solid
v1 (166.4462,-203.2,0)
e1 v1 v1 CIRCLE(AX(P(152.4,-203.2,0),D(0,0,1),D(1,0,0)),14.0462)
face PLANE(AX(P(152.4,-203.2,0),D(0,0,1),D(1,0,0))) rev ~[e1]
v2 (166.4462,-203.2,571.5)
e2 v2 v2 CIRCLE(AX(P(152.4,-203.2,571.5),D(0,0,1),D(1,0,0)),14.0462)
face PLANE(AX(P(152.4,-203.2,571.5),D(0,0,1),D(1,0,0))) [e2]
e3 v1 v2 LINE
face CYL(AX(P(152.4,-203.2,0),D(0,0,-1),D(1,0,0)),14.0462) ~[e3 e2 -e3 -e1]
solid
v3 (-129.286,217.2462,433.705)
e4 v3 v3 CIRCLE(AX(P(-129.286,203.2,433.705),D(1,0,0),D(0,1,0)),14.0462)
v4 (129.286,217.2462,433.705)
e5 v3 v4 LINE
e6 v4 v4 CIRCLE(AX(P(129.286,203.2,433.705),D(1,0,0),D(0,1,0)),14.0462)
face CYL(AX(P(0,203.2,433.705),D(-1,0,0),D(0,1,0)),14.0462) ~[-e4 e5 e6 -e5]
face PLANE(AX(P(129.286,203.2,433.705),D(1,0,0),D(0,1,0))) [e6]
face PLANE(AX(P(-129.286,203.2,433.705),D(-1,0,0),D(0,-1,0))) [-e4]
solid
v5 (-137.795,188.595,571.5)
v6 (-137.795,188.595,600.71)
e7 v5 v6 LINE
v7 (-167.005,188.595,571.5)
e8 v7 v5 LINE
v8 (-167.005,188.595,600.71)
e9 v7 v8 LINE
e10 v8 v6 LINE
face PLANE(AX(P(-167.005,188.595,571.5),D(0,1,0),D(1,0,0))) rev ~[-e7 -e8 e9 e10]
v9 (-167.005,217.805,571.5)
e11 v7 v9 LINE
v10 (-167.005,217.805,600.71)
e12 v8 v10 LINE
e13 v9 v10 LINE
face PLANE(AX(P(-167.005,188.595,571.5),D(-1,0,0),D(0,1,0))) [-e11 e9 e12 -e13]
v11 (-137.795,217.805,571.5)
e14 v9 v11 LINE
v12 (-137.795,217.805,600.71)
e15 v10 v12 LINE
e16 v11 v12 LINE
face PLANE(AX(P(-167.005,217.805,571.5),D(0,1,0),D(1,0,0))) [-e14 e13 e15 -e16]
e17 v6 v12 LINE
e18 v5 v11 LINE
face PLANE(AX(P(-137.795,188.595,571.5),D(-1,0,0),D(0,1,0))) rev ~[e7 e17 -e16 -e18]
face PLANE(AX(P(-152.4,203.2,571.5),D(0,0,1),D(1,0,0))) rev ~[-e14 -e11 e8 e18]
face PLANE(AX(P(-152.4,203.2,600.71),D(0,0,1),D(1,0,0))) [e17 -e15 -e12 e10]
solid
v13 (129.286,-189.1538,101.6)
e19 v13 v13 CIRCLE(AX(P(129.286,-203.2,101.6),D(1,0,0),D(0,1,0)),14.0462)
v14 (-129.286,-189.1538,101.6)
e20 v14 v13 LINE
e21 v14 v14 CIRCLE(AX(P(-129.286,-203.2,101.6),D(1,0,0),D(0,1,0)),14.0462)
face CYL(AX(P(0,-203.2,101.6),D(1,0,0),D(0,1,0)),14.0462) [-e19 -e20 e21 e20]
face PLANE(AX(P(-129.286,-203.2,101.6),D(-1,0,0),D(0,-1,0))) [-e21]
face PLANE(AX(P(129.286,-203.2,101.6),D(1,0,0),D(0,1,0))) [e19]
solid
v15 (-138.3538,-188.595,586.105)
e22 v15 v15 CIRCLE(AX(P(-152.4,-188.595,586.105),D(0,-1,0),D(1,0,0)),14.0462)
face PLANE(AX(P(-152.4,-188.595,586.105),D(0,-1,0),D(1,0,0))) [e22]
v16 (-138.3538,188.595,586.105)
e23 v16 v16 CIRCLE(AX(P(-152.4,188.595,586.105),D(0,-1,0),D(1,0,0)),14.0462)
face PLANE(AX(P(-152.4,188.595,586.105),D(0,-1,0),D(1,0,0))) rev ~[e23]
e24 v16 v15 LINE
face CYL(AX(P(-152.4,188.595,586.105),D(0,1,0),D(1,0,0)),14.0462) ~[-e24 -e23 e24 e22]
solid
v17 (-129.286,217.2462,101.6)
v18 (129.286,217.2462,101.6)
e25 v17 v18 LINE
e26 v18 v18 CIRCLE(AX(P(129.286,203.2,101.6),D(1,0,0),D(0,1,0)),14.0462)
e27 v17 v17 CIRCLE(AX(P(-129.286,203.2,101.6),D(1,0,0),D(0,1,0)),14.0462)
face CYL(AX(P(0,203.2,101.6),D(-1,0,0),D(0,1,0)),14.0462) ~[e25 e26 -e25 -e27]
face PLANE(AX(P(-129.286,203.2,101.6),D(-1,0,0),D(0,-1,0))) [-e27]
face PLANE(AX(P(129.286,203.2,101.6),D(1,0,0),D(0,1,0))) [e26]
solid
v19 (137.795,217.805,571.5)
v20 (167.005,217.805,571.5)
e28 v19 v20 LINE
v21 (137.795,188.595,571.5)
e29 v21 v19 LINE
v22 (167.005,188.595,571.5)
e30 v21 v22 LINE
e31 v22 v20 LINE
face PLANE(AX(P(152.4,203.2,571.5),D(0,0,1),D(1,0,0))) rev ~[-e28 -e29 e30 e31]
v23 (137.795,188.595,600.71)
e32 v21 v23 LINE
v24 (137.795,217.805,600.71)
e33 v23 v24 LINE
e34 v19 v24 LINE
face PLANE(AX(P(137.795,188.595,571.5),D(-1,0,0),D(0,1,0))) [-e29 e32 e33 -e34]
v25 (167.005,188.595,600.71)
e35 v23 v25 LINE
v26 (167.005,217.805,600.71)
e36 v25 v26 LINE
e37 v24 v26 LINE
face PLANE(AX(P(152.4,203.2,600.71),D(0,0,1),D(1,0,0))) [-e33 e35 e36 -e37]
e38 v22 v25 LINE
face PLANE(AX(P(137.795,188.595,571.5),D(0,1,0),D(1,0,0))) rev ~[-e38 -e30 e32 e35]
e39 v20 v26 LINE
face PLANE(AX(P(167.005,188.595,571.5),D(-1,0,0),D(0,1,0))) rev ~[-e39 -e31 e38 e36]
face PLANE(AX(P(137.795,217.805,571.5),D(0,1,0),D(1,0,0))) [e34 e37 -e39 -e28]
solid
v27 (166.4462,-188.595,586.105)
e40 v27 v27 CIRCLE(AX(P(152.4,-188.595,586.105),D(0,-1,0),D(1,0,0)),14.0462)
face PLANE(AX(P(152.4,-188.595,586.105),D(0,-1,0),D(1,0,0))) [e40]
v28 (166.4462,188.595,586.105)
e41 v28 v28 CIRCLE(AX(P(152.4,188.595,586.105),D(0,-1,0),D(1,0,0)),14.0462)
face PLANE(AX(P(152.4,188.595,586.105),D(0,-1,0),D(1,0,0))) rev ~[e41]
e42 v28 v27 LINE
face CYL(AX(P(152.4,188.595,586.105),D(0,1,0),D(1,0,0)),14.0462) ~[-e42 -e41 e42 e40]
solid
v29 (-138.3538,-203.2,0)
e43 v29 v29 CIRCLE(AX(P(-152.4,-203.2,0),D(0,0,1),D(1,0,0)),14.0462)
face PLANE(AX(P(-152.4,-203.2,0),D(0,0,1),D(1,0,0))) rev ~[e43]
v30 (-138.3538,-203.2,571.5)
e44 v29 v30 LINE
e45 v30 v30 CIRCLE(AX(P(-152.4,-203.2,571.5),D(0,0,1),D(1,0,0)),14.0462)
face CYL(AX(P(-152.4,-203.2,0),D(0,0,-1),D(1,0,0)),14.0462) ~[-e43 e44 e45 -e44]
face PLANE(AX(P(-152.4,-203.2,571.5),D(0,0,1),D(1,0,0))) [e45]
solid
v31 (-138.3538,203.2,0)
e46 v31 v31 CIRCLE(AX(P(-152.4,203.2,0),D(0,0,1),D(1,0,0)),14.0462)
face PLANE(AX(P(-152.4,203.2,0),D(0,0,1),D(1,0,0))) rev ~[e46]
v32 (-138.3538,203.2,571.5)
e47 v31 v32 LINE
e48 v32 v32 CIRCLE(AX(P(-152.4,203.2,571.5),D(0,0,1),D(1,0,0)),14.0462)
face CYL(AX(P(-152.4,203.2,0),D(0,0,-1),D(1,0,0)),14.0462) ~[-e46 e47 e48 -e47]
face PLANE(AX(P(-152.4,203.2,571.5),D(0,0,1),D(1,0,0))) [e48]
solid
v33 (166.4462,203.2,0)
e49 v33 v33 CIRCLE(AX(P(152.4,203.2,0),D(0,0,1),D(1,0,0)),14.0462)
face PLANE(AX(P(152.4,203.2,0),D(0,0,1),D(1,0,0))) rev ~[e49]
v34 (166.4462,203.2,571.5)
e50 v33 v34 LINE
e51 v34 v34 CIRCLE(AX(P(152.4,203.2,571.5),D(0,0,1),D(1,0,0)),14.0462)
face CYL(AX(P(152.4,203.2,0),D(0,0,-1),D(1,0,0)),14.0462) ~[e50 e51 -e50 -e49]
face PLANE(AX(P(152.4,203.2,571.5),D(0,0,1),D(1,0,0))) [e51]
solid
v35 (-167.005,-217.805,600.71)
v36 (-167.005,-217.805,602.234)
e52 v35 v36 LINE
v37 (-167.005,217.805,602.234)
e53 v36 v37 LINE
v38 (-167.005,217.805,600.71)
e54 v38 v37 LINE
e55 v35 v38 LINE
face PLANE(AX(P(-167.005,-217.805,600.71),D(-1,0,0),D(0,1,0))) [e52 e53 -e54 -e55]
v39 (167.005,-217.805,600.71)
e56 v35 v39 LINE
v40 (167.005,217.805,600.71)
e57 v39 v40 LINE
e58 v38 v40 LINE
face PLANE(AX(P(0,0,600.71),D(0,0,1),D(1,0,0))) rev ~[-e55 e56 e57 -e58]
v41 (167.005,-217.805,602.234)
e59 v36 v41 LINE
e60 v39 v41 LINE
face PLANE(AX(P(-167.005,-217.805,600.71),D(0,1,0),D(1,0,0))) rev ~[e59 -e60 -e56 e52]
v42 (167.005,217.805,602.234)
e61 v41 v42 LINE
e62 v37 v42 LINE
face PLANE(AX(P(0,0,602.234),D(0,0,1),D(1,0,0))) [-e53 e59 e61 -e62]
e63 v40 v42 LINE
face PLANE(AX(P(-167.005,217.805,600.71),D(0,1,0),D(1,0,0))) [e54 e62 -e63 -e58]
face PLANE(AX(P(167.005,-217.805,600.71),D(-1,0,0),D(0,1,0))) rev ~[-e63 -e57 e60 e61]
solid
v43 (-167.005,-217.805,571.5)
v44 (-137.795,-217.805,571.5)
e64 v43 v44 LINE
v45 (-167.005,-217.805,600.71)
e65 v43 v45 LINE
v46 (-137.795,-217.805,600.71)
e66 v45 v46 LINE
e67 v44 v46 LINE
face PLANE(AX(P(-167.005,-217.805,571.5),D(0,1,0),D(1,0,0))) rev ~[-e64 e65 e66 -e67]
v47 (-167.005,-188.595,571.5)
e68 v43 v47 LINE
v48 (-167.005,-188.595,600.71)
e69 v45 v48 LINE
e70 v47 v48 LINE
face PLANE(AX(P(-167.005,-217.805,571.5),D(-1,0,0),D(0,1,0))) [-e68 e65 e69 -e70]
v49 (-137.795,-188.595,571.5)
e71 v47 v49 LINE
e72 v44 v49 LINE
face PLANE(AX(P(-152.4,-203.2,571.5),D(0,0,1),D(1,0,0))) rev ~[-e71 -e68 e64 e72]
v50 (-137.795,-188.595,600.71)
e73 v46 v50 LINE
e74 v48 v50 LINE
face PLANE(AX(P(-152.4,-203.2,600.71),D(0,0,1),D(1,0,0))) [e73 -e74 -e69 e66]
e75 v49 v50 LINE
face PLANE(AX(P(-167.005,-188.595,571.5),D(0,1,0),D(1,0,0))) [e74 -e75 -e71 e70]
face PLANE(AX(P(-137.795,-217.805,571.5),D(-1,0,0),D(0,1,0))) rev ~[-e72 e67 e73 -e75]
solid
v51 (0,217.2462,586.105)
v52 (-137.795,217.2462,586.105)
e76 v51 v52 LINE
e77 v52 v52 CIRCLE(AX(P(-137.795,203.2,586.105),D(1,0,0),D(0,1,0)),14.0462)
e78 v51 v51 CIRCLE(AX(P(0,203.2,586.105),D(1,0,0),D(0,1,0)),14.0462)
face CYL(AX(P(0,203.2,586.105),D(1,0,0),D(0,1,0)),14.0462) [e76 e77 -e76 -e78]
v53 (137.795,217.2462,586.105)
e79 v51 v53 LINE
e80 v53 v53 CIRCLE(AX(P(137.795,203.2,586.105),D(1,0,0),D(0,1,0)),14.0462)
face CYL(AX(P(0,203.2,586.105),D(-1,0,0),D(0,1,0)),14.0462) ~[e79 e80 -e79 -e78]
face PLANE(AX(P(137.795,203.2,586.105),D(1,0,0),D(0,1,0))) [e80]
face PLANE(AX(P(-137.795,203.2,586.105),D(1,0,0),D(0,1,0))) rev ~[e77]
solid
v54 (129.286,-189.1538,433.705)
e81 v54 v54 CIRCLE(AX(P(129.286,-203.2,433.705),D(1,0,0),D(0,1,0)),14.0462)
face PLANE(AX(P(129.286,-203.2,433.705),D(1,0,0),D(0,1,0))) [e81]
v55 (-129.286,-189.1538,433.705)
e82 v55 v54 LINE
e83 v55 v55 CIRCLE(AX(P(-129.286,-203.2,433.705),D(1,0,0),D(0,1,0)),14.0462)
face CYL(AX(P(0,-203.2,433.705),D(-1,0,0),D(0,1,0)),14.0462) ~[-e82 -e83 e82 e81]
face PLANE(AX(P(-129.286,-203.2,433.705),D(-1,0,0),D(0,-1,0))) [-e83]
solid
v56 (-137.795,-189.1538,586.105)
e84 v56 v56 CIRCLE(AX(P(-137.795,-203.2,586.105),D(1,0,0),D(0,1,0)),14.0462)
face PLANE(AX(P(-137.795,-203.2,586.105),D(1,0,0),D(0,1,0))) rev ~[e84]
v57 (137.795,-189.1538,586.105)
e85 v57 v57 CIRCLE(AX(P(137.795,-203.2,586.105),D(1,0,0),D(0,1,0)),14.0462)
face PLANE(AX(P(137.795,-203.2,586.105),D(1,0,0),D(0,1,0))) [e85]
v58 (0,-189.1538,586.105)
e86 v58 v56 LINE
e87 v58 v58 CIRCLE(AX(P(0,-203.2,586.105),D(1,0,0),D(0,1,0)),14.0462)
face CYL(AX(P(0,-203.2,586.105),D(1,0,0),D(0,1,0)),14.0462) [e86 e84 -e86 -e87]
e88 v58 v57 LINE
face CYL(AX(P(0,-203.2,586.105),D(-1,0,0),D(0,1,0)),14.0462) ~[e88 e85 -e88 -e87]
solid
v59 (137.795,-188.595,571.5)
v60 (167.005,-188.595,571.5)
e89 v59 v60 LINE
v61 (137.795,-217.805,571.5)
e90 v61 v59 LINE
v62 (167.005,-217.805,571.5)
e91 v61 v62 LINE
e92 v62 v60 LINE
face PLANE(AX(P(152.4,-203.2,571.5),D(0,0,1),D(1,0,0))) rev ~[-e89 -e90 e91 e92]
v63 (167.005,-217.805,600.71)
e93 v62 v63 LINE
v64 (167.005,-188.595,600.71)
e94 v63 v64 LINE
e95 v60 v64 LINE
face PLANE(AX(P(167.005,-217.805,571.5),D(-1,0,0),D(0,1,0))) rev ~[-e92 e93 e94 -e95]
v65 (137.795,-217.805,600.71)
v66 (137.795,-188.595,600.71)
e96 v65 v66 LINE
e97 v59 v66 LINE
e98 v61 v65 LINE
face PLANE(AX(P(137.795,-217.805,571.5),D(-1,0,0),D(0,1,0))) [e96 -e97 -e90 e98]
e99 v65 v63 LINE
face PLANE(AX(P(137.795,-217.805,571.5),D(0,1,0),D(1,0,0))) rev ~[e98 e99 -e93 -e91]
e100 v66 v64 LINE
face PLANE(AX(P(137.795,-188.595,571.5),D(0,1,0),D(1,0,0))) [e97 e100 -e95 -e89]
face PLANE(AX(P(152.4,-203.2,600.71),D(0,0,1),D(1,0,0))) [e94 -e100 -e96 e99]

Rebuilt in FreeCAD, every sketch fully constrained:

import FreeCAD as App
import Part
import Sketcher
Q = App.Units.Quantity


def add_polygon(sketch, points):
    """Adds a closed chain of lines whose ends are joined by coincident constraints."""
    first, n = sketch.GeometryCount, len(points)
    for a, b in zip(points, points[1:] + points[:1]):
        sketch.addGeometry(Part.LineSegment(App.Vector(*a, 0), App.Vector(*b, 0)), False)
    for i in range(n):
        sketch.addConstraint(Sketcher.Constraint("Coincident", first + i, 2, first + (i + 1) % n, 1))

doc = App.newDocument("Part")
body = doc.addObject("PartDesign::Body", "Body")
body.AllowCompound = True

# Sketch on XY plane
sketch1 = body.newObject("Sketcher::SketchObject", "Sketch")
sketch1.AttachmentSupport = (doc.getObject("XY_Plane"), [""])
sketch1.MapMode = "FlatFace"
sketch1.addGeometry([
    Part.Circle(App.Vector(-152, 203, 0), App.Vector(0, 0, 1), 14),
    Part.Circle(App.Vector(152, 203, 0), App.Vector(0, 0, 1), 14),
    Part.Circle(App.Vector(-152, -203, 0), App.Vector(0, 0, 1), 14),
    Part.Circle(App.Vector(152, -203, 0), App.Vector(0, 0, 1), 14),
], False)
sketch1.addConstraint([
    Sketcher.Constraint("Equal", 0, 1),
    Sketcher.Constraint("Equal", 1, 2),
    Sketcher.Constraint("Equal", 2, 3),
    Sketcher.Constraint("Symmetric", 1, 3, 2, 3, -1, 1),
    Sketcher.Constraint("Symmetric", 0, 3, 3, 3, -1, 1),
    Sketcher.Constraint("Symmetric", 0, 3, 1, 3, -2),
    Sketcher.Constraint("Diameter", 0, Q("1.106 in")),
    Sketcher.Constraint("DistanceX", 0, 3, -1, 1, Q("6 in")),
    Sketcher.Constraint("DistanceY", -1, 1, 0, 3, Q("8 in")),
])
pad1 = body.newObject("PartDesign::Pad", "Pad")
pad1.Profile = sketch1
pad1.Length = Q("22.5 in")
body2 = doc.addObject("PartDesign::Body", "Body001")
body2.AllowCompound = True

# Sketch on YZ plane
sketch2 = body2.newObject("Sketcher::SketchObject", "Sketch001")
sketch2.AttachmentSupport = (doc.getObject("YZ_Plane001"), [""])
sketch2.MapMode = "FlatFace"
sketch2.addGeometry([
    Part.Circle(App.Vector(203, 102, 0), App.Vector(0, 0, 1), 14),  # 0
    Part.Circle(App.Vector(203, 434, 0), App.Vector(0, 0, 1), 14),  # 1
    Part.Circle(App.Vector(203, 586, 0), App.Vector(0, 0, 1), 14),  # 2
    Part.Circle(App.Vector(-203, 586, 0), App.Vector(0, 0, 1), 14),  # 3
    Part.Circle(App.Vector(-203, 434, 0), App.Vector(0, 0, 1), 14),  # 4
    Part.Circle(App.Vector(-203, 102, 0), App.Vector(0, 0, 1), 14),  # 5
], False)
sketch2.addConstraint([
    Sketcher.Constraint("Equal", 0, 1),
    Sketcher.Constraint("Equal", 1, 2),
    Sketcher.Constraint("Equal", 2, 3),
    Sketcher.Constraint("Equal", 3, 4),
    Sketcher.Constraint("Equal", 4, 5),
    Sketcher.Constraint("Symmetric", 2, 3, 3, 3, -2),
    Sketcher.Constraint("Symmetric", 1, 3, 4, 3, -2),
    Sketcher.Constraint("Symmetric", 0, 3, 5, 3, -2),
    Sketcher.Constraint("Vertical", 0, 3, 1, 3),
    Sketcher.Constraint("Vertical", 1, 3, 2, 3),
    Sketcher.Constraint("Diameter", 0, Q("1.106 in")),
    Sketcher.Constraint("DistanceX", -1, 1, 0, 3, Q("8 in")),
    Sketcher.Constraint("DistanceY", -1, 1, 0, 3, Q("4 in")),
    Sketcher.Constraint("DistanceY", 1, 3, 2, 3, Q("6 in")),
    Sketcher.Constraint("DistanceY", -1, 1, 1, 3, Q("17.075 in")),
])
pad2 = body2.newObject("PartDesign::Pad", "Pad001")
pad2.Profile = sketch2
pad2.Length = Q("10.85 in")
pad2.Midplane = True

# Sketch on YZ plane
sketch3 = body2.newObject("Sketcher::SketchObject", "Sketch002")
sketch3.AttachmentSupport = (doc.getObject("YZ_Plane001"), [""])
sketch3.MapMode = "FlatFace"
sketch3.AttachmentOffset = App.Placement(App.Vector(0, 0, -5.425 * 25.4), App.Rotation())
sketch3.addGeometry([
    Part.Circle(App.Vector(203, 434, 0), App.Vector(0, 0, 1), 14),
    Part.Circle(App.Vector(-203, 434, 0), App.Vector(0, 0, 1), 14),
    Part.Circle(App.Vector(203, 102, 0), App.Vector(0, 0, 1), 14),
    Part.Circle(App.Vector(-203, 102, 0), App.Vector(0, 0, 1), 14),
], False)
sketch3.addConstraint([
    Sketcher.Constraint("Equal", 0, 1),
    Sketcher.Constraint("Equal", 1, 2),
    Sketcher.Constraint("Equal", 2, 3),
    Sketcher.Constraint("Symmetric", 0, 3, 1, 3, -2),
    Sketcher.Constraint("Symmetric", 2, 3, 3, 3, -2),
    Sketcher.Constraint("Vertical", 0, 3, 2, 3),
    Sketcher.Constraint("Diameter", 0, Q("1.106 in")),
    Sketcher.Constraint("DistanceX", -1, 1, 0, 3, Q("8 in")),
    Sketcher.Constraint("DistanceY", -1, 1, 2, 3, Q("4 in")),
    Sketcher.Constraint("DistanceY", -1, 1, 0, 3, Q("17.075 in")),
])
pocket1 = body2.newObject("PartDesign::Pocket", "Pocket")
pocket1.Profile = sketch3
pocket1.Length = Q("0.335 in")
pocket1.Reversed = True

# Sketch on YZ plane
sketch4 = body2.newObject("Sketcher::SketchObject", "Sketch003")
sketch4.AttachmentSupport = (doc.getObject("YZ_Plane001"), [""])
sketch4.MapMode = "FlatFace"
sketch4.AttachmentOffset = App.Placement(App.Vector(0, 0, 5.425 * 25.4), App.Rotation())
sketch4.addGeometry([
    Part.Circle(App.Vector(203, 102, 0), App.Vector(0, 0, 1), 14),
    Part.Circle(App.Vector(203, 434, 0), App.Vector(0, 0, 1), 14),
    Part.Circle(App.Vector(-203, 434, 0), App.Vector(0, 0, 1), 14),
    Part.Circle(App.Vector(-203, 102, 0), App.Vector(0, 0, 1), 14),
], False)
sketch4.addConstraint([
    Sketcher.Constraint("Equal", 0, 1),
    Sketcher.Constraint("Equal", 1, 2),
    Sketcher.Constraint("Equal", 2, 3),
    Sketcher.Constraint("Symmetric", 1, 3, 2, 3, -2),
    Sketcher.Constraint("Symmetric", 0, 3, 3, 3, -2),
    Sketcher.Constraint("Vertical", 0, 3, 1, 3),
    Sketcher.Constraint("Diameter", 0, Q("1.106 in")),
    Sketcher.Constraint("DistanceX", -1, 1, 0, 3, Q("8 in")),
    Sketcher.Constraint("DistanceY", -1, 1, 0, 3, Q("4 in")),
    Sketcher.Constraint("DistanceY", -1, 1, 1, 3, Q("17.075 in")),
])
pocket2 = body2.newObject("PartDesign::Pocket", "Pocket001")
pocket2.Profile = sketch4
pocket2.Length = Q("0.335 in")
body3 = doc.addObject("PartDesign::Body", "Body002")
body3.AllowCompound = True

# Sketch on XY plane
sketch5 = body3.newObject("Sketcher::SketchObject", "Sketch004")
sketch5.AttachmentSupport = (doc.getObject("XY_Plane002"), [""])
sketch5.MapMode = "FlatFace"
sketch5.AttachmentOffset = App.Placement(App.Vector(0, 0, 22.5 * 25.4), App.Rotation())
add_polygon(sketch5, [(138, -189), (138, -218), (167, -218), (167, -189)])  # lines 0-3
add_polygon(sketch5, [(138, 218), (138, 189), (167, 189), (167, 218)])  # lines 4-7
add_polygon(sketch5, [(-167, 218), (-167, 189), (-138, 189), (-138, 218)])  # lines 8-11
add_polygon(sketch5, [(-167, -189), (-167, -218), (-138, -218), (-138, -189)])  # lines 12-15
sketch5.addConstraint([
    Sketcher.Constraint("Vertical", 0),
    Sketcher.Constraint("Horizontal", 1),
    Sketcher.Constraint("Vertical", 2),
    Sketcher.Constraint("Horizontal", 3),
    Sketcher.Constraint("Vertical", 4),
    Sketcher.Constraint("Horizontal", 5),
    Sketcher.Constraint("Vertical", 6),
    Sketcher.Constraint("Horizontal", 7),
    Sketcher.Constraint("Vertical", 8),
    Sketcher.Constraint("Horizontal", 9),
    Sketcher.Constraint("Vertical", 10),
    Sketcher.Constraint("Horizontal", 11),
    Sketcher.Constraint("Vertical", 12),
    Sketcher.Constraint("Horizontal", 13),
    Sketcher.Constraint("Vertical", 14),
    Sketcher.Constraint("Horizontal", 15),
    Sketcher.Constraint("Symmetric", 2, 2, 8, 2, -1, 1),
    Sketcher.Constraint("Symmetric", 0, 2, 10, 2, -1, 1),
    Sketcher.Constraint("Symmetric", 6, 2, 12, 2, -1, 1),
    Sketcher.Constraint("Symmetric", 4, 2, 14, 2, -1, 1),
    Sketcher.Constraint("Symmetric", 5, 2, 8, 2, -2),
    Sketcher.Constraint("Symmetric", 7, 2, 10, 2, -2),
    Sketcher.Constraint("Equal", 15, 0),
    Sketcher.Constraint("DistanceY", 0, 2, 4, 2, Q("16 in")),
    Sketcher.Constraint("DistanceX", 8, 2, 4, 2, Q("12 in")),
    Sketcher.Constraint("DistanceX", 1, 1, 1, 2, Q("1.15 in")),
])
pad3 = body3.newObject("PartDesign::Pad", "Pad002")
pad3.Profile = sketch5
pad3.Length = Q("1.15 in")
body4 = doc.addObject("PartDesign::Body", "Body003")
body4.AllowCompound = True

# Sketch on XZ plane
sketch6 = body4.newObject("Sketcher::SketchObject", "Sketch005")
sketch6.AttachmentSupport = (doc.getObject("XZ_Plane003"), [""])
sketch6.MapMode = "FlatFace"
sketch6.AttachmentOffset = App.Placement(App.Vector(0, 0, -7.425 * 25.4), App.Rotation())
sketch6.addGeometry([
    Part.Circle(App.Vector(152, 586, 0), App.Vector(0, 0, 1), 14),
    Part.Circle(App.Vector(-152, 586, 0), App.Vector(0, 0, 1), 14),
], False)
sketch6.addConstraint([
    Sketcher.Constraint("Equal", 0, 1),
    Sketcher.Constraint("Symmetric", 0, 3, 1, 3, -2),
    Sketcher.Constraint("Diameter", 0, Q("1.106 in")),
    Sketcher.Constraint("DistanceX", -1, 1, 0, 3, Q("6 in")),
    Sketcher.Constraint("DistanceY", -1, 1, 0, 3, Q("23.075 in")),
])
pad4 = body4.newObject("PartDesign::Pad", "Pad003")
pad4.Profile = sketch6
pad4.Length = Q("14.85 in")
body5 = doc.addObject("PartDesign::Body", "Body004")

# Sketch on XY plane
sketch7 = body5.newObject("Sketcher::SketchObject", "Sketch006")
sketch7.AttachmentSupport = (doc.getObject("XY_Plane004"), [""])
sketch7.MapMode = "FlatFace"
sketch7.AttachmentOffset = App.Placement(App.Vector(0, 0, 23.65 * 25.4), App.Rotation())
add_polygon(sketch7, [(-167, 218), (-167, -218), (167, -218), (167, 218)])  # lines 0-3
sketch7.addConstraint([
    Sketcher.Constraint("Vertical", 0),
    Sketcher.Constraint("Horizontal", 1),
    Sketcher.Constraint("Vertical", 2),
    Sketcher.Constraint("Horizontal", 3),
    Sketcher.Constraint("Symmetric", 0, 2, 2, 2, -1, 1),
    Sketcher.Constraint("DistanceX", 1, 1, 1, 2, Q("13.15 in")),
    Sketcher.Constraint("DistanceY", 0, 2, 0, 1, Q("17.15 in")),
])
pad5 = body5.newObject("PartDesign::Pad", "Pad004")
pad5.Profile = sketch7
pad5.Length = Q("0.06 in")

doc.recompute()
